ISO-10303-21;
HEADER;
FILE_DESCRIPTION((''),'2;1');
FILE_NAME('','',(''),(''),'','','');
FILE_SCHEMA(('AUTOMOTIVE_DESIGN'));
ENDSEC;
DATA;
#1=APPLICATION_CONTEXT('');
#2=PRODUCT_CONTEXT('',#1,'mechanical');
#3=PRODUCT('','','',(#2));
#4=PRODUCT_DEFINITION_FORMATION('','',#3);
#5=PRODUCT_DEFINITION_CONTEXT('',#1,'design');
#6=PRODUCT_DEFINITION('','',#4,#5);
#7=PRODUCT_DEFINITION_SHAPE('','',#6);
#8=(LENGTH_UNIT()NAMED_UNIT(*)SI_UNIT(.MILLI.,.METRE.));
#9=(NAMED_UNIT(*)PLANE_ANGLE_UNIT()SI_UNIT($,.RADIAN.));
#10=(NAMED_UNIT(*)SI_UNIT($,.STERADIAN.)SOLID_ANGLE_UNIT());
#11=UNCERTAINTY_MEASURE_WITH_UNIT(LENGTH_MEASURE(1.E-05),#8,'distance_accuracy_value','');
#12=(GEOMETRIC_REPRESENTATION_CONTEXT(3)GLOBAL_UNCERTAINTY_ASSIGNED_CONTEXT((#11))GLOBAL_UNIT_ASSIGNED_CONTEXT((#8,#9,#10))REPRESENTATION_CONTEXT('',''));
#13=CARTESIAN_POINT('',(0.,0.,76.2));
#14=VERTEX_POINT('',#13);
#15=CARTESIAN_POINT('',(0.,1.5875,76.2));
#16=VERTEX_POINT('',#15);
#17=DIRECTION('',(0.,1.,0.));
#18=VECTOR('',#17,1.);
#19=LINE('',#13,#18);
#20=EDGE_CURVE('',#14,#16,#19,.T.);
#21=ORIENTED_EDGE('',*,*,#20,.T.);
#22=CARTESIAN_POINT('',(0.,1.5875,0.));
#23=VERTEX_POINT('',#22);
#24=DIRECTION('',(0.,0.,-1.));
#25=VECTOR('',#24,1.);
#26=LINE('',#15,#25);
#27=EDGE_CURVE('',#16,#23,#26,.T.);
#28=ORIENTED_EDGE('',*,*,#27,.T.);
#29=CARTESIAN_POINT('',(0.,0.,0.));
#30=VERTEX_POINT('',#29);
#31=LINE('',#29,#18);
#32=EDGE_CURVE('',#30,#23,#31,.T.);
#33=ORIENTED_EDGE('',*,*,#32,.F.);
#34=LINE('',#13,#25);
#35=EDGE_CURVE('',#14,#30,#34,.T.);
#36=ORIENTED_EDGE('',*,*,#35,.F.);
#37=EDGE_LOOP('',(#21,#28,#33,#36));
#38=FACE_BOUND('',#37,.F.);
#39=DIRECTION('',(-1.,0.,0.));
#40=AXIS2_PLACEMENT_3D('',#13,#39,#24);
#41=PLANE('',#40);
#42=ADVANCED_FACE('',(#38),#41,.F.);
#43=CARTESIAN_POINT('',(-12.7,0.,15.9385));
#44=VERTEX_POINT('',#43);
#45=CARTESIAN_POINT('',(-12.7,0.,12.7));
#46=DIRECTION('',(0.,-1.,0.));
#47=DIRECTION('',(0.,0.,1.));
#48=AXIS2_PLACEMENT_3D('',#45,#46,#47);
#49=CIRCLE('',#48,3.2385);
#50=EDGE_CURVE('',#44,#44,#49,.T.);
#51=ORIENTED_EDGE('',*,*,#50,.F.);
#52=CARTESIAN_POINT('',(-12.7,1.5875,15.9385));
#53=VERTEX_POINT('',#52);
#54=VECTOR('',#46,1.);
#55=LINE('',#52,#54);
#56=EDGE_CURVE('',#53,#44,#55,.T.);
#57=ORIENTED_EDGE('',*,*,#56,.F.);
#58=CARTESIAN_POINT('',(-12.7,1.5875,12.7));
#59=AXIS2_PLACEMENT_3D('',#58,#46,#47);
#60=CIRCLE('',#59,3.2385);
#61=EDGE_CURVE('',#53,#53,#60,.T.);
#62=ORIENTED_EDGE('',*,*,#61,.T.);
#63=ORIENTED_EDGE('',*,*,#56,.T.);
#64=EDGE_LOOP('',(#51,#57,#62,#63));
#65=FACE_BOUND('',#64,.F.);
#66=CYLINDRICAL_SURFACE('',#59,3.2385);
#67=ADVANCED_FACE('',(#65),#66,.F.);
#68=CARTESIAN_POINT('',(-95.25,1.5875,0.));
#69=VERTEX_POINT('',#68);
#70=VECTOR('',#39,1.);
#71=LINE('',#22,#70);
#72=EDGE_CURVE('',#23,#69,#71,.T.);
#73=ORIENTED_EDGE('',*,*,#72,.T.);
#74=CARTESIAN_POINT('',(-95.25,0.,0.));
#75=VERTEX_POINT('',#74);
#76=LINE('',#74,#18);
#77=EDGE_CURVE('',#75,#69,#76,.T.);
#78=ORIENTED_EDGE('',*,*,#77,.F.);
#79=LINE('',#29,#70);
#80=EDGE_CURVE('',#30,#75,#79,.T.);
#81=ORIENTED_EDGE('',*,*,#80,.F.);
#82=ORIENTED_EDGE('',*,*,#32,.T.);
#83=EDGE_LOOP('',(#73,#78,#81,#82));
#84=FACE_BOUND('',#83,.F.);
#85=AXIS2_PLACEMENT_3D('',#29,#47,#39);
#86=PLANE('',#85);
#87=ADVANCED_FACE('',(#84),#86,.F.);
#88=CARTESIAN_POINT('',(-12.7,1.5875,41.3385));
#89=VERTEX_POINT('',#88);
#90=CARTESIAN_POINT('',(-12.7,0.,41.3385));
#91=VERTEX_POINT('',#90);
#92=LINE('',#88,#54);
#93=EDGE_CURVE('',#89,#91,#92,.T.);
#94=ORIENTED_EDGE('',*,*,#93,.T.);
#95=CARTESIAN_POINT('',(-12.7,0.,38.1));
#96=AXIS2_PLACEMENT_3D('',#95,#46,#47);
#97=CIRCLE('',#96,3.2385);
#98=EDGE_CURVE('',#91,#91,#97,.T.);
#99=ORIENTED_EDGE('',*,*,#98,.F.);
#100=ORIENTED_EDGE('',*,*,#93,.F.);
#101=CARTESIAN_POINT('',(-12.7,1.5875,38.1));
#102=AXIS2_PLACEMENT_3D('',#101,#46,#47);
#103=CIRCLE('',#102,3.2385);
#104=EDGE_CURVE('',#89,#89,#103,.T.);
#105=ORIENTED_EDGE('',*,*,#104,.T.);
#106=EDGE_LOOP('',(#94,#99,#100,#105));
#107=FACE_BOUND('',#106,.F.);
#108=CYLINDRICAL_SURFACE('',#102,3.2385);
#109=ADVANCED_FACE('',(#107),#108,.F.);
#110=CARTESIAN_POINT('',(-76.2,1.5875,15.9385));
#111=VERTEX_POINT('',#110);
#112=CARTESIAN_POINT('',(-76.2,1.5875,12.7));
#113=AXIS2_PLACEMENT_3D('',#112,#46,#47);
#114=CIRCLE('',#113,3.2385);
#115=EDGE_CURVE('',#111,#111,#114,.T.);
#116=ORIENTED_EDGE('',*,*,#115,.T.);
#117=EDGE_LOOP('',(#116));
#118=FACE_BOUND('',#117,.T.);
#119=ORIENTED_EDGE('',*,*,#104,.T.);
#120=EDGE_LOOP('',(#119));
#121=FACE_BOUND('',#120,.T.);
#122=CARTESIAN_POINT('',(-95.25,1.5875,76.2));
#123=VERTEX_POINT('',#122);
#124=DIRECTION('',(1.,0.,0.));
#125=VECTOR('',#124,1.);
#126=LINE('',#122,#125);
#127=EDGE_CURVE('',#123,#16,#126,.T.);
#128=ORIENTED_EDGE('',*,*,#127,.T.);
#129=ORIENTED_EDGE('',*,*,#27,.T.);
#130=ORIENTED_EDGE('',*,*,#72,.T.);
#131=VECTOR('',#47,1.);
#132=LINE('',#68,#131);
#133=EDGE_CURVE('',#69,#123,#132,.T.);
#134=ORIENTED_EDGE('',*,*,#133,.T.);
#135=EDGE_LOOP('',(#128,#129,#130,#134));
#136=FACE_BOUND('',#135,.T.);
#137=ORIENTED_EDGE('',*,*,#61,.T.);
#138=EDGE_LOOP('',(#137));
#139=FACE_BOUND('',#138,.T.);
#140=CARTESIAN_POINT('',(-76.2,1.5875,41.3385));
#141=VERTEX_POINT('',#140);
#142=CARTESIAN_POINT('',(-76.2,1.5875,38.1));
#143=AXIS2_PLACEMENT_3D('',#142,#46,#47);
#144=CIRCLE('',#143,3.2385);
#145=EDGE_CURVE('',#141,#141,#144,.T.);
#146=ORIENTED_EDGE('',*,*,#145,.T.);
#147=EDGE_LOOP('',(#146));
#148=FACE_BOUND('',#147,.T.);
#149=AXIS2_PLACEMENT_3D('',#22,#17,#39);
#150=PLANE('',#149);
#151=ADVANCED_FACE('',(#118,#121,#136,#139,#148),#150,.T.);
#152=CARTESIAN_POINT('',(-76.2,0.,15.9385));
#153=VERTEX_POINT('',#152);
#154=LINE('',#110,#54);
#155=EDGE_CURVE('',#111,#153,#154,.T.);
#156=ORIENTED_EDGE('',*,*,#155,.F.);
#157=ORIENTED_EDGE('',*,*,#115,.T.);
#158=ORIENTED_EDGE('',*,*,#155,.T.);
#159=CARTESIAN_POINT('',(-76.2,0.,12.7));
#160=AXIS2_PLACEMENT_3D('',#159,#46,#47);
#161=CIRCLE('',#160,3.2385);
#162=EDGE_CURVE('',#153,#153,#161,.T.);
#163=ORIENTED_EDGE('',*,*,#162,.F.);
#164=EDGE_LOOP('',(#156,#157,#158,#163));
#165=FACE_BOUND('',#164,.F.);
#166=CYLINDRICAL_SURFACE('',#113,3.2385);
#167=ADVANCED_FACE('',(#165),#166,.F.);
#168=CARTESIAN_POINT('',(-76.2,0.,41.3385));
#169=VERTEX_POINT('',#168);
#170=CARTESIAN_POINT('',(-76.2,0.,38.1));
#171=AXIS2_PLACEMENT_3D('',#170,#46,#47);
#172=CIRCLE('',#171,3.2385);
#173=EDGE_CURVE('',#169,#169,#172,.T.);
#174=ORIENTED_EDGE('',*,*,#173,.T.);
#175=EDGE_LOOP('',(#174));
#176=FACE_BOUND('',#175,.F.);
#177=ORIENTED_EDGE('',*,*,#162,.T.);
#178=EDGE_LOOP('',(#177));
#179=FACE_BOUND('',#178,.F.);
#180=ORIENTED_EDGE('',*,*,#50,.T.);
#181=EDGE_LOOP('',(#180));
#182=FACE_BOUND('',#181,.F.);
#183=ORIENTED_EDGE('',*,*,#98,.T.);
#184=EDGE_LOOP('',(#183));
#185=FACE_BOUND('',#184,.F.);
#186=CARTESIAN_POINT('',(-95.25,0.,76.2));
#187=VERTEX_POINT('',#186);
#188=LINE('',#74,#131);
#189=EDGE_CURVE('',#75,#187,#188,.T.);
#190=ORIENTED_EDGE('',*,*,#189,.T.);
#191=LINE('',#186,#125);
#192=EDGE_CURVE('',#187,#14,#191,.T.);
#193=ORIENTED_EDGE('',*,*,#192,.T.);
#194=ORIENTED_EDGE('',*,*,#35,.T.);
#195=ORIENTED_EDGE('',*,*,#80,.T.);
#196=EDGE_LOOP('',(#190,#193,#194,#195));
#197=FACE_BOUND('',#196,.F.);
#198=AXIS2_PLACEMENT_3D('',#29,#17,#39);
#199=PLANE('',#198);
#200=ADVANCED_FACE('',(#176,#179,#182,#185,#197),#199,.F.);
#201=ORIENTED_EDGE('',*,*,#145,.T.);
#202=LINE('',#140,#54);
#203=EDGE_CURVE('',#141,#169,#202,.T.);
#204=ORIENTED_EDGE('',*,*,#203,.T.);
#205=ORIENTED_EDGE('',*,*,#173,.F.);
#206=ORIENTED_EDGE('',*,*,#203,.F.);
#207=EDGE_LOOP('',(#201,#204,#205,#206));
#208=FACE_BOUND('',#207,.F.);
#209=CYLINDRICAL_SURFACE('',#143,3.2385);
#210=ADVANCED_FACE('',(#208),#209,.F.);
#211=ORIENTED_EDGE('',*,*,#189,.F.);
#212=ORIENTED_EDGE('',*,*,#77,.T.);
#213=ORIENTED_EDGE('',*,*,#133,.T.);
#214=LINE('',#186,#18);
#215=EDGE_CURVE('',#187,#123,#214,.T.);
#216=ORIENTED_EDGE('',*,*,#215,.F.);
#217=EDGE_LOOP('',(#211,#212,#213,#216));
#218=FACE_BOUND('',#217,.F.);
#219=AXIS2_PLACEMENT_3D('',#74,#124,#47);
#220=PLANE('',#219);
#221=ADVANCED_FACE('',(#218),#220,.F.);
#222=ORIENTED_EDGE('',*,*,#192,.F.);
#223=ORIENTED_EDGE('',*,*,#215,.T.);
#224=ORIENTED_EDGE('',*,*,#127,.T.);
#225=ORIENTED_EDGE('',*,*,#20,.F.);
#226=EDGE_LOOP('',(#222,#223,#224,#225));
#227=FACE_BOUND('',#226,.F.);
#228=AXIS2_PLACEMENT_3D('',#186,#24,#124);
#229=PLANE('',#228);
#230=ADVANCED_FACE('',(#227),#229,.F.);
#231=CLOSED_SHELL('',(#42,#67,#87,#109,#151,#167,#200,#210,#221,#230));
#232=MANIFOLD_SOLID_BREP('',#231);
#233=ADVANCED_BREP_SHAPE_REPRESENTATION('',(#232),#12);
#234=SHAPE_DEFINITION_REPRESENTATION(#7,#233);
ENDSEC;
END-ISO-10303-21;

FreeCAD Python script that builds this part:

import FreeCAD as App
import Part
import Sketcher
from FreeCAD import Vector
Q = App.Units.Quantity

doc = App.newDocument("Part")
body = doc.addObject("PartDesign::Body", "Body")

sketch1 = doc.addObject("Sketcher::SketchObject", "Sketch")
body.addObject(sketch1)
sketch1.AttachmentSupport = (doc.XZ_Plane, [""])
sketch1.MapMode = "FlatFace"
sketch1.addGeometry([
    Part.LineSegment(Vector(0, 76, 0), Vector(0, 0, 0)),
    Part.LineSegment(Vector(0, 0, 0), Vector(-95, 0, 0)),
    Part.LineSegment(Vector(-95, 0, 0), Vector(-95, 76, 0)),
    Part.LineSegment(Vector(-95, 76, 0), Vector(0, 76, 0)),
], False)
sketch1.addConstraint([
    Sketcher.Constraint("Coincident", 0, 2, 1, 1),
    Sketcher.Constraint("Coincident", 1, 2, 2, 1),
    Sketcher.Constraint("Coincident", 2, 2, 3, 1),
    Sketcher.Constraint("Coincident", 3, 2, 0, 1),
    Sketcher.Constraint("Vertical", 0),
    Sketcher.Constraint("Horizontal", 1),
    Sketcher.Constraint("Vertical", 2),
    Sketcher.Constraint("Horizontal", 3),
    Sketcher.Constraint("Coincident", 0, 2, -1, 1),
    Sketcher.Constraint("DistanceY", 0, 2, 0, 1, Q("3 in")),
    Sketcher.Constraint("DistanceX", 1, 2, 1, 1, Q("3.75 in")),
])
pad1 = doc.addObject("PartDesign::Pad", "Pad")
body.addObject(pad1)
pad1.Profile = sketch1
pad1.Length = Q("0.0625 in")
pad1.Reversed = True

sketch2 = doc.addObject("Sketcher::SketchObject", "Sketch001")
body.addObject(sketch2)
sketch2.AttachmentSupport = (doc.XZ_Plane, [""])
sketch2.MapMode = "FlatFace"
sketch2.AttachmentOffset = App.Placement(Vector(0, 0, -0.0625 * 25.4), App.Rotation())
sketch2.addGeometry([
    Part.Circle(Vector(-76.2, 12.7, 0), Vector(0, 0, 1), 3.2),
    Part.Circle(Vector(-12.7, 12.7, 0), Vector(0, 0, 1), 3.2),
    Part.Circle(Vector(-76.2, 38.1, 0), Vector(0, 0, 1), 3.2),
    Part.Circle(Vector(-12.7, 38.1, 0), Vector(0, 0, 1), 3.2),
], False)
sketch2.addConstraint([
    Sketcher.Constraint("Equal", 0, 1),
    Sketcher.Constraint("Equal", 1, 2),
    Sketcher.Constraint("Equal", 2, 3),
    Sketcher.Constraint("Horizontal", 0, 3, 1, 3),
    Sketcher.Constraint("Horizontal", 2, 3, 3, 3),
    Sketcher.Constraint("Vertical", 0, 3, 2, 3),
    Sketcher.Constraint("Vertical", 1, 3, 3, 3),
    Sketcher.Constraint("Diameter", 0, Q("0.255 in")),
    Sketcher.Constraint("DistanceX", 0, 3, -1, 1, Q("3 in")),
    Sketcher.Constraint("DistanceY", 0, 3, 2, 3, Q("1 in")),
    Sketcher.Constraint("DistanceY", -1, 1, 0, 3, Q("0.5 in")),
    Sketcher.Constraint("DistanceX", 1, 3, -1, 1, Q("0.5 in")),
])
doc.recompute()
hole = doc.addObject("PartDesign::Hole", "Hole")
body.addObject(hole)
hole.Profile = sketch2
hole.ThreadType = "None"
hole.Diameter = Q("0.255 in")
hole.DepthType = "ThroughAll"
hole.Reversed = True

doc.recompute()
